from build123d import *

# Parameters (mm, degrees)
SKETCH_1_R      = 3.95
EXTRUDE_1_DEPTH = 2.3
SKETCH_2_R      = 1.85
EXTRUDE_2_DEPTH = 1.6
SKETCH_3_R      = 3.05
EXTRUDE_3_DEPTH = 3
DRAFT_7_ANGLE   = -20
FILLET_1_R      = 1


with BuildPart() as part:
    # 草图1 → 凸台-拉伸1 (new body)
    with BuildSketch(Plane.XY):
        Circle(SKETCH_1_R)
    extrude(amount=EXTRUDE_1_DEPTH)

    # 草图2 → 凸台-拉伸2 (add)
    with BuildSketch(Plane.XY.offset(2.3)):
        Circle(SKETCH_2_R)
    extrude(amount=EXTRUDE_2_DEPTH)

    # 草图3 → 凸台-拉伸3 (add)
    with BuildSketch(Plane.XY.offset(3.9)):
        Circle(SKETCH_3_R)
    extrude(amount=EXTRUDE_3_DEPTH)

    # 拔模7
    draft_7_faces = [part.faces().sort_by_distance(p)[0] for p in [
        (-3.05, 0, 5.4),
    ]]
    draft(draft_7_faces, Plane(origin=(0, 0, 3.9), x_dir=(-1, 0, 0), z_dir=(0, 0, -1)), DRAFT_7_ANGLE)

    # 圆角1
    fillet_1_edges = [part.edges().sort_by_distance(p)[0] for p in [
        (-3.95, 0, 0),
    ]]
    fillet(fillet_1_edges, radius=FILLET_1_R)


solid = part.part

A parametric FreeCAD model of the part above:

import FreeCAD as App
import Part
import Sketcher
Q = App.Units.Quantity


def edges_at(feature, points):
    """Names of the edges that pass closest to the given points."""
    edges = feature.Shape.Edges
    near = lambda p: min(range(len(edges)), key=lambda i: edges[i].distToShape(Part.Vertex(*p))[0])
    return sorted({f"Edge{near(p) + 1}" for p in points})


def faces_at(feature, points):
    """Names of the faces that lie closest to the given points."""
    faces = feature.Shape.Faces
    near = lambda p: min(range(len(faces)), key=lambda i: faces[i].distToShape(Part.Vertex(*p))[0])
    return sorted({f"Face{near(p) + 1}" for p in points})

doc = App.newDocument("Part")
params = doc.addObject("Spreadsheet::Sheet", "Params")
for row, (alias, value) in enumerate([
    ("sketch1_diameter", "7.9 mm"),
    ("pad1_length", "2.3 mm"),
    ("sketch2_diameter", "3.7 mm"),
    ("pad2_length", "1.6 mm"),
    ("sketch3_diameter", "6.1 mm"),
    ("pad3_length", "3 mm"),
    ("draft_angle", "20 deg"),
    ("fillet_radius", "1 mm"),
], start=1):
    params.set(f"A{row}", alias)
    params.set(f"B{row}", "=" + value)
    params.setAlias(f"B{row}", alias)

body = doc.addObject("PartDesign::Body", "Body")

# Sketch on XY plane
sketch1 = doc.addObject("Sketcher::SketchObject", "Sketch")
body.addObject(sketch1)
sketch1.AttachmentSupport = (doc.XY_Plane, [""])
sketch1.MapMode = "FlatFace"
sketch1.addGeometry(Part.Circle(App.Vector(0, 0, 0), App.Vector(0, 0, 1), 4), False)
sketch1.addConstraint(Sketcher.Constraint("Coincident", 0, 3, -1, 1))
sketch1.addConstraint(Sketcher.Constraint("Diameter", 0, Q("7.9 mm")))
sketch1.setExpression("Constraints[1]", "Params.sketch1_diameter")
pad1 = doc.addObject("PartDesign::Pad", "Pad")
body.addObject(pad1)
pad1.Profile = sketch1
pad1.setExpression("Length", "Params.pad1_length")

# Sketch on XY plane
sketch2 = doc.addObject("Sketcher::SketchObject", "Sketch001")
body.addObject(sketch2)
sketch2.AttachmentSupport = (doc.XY_Plane, [""])
sketch2.MapMode = "FlatFace"
sketch2.AttachmentOffset = App.Placement(App.Vector(0, 0, 2.3), App.Rotation())
sketch2.addGeometry(Part.Circle(App.Vector(0, 0, 0), App.Vector(0, 0, 1), 1.9), False)
sketch2.addConstraint(Sketcher.Constraint("Coincident", 0, 3, -1, 1))
sketch2.addConstraint(Sketcher.Constraint("Diameter", 0, Q("3.7 mm")))
sketch2.setExpression("Constraints[1]", "Params.sketch2_diameter")
pad2 = doc.addObject("PartDesign::Pad", "Pad001")
body.addObject(pad2)
pad2.Profile = sketch2
pad2.setExpression("Length", "Params.pad2_length")

# Sketch on XY plane
sketch3 = doc.addObject("Sketcher::SketchObject", "Sketch002")
body.addObject(sketch3)
sketch3.AttachmentSupport = (doc.XY_Plane, [""])
sketch3.MapMode = "FlatFace"
sketch3.AttachmentOffset = App.Placement(App.Vector(0, 0, 3.9), App.Rotation())
sketch3.addGeometry(Part.Circle(App.Vector(0, 0, 0), App.Vector(0, 0, 1), 3), False)
sketch3.addConstraint(Sketcher.Constraint("Coincident", 0, 3, -1, 1))
sketch3.addConstraint(Sketcher.Constraint("Diameter", 0, Q("6.1 mm")))
sketch3.setExpression("Constraints[1]", "Params.sketch3_diameter")
pad3 = doc.addObject("PartDesign::Pad", "Pad002")
body.addObject(pad3)
pad3.Profile = sketch3
pad3.setExpression("Length", "Params.pad3_length")
doc.recompute()

datumplane = doc.addObject("PartDesign::Plane", "DatumPlane")
body.addObject(datumplane)
datumplane.AttachmentSupport = (doc.XY_Plane, [""])
datumplane.MapMode = "FlatFace"
datumplane.AttachmentOffset = App.Placement(App.Vector(0, 0, 3.9), App.Rotation())
draft = doc.addObject("PartDesign::Draft", "Draft")
body.addObject(draft)
draft.Base = (pad3, faces_at(pad3, [(-3.05, 0, 5.4)]))
draft.NeutralPlane = (datumplane, [""])
draft.setExpression("Angle", "Params.draft_angle")
draft.Reversed = False
doc.recompute()

fillet = doc.addObject("PartDesign::Fillet", "Fillet")
body.addObject(fillet)
fillet.Base = (draft, edges_at(draft, [(-3.95, 0, 0)]))
fillet.setExpression("Radius", "Params.fillet_radius")

doc.recompute()
